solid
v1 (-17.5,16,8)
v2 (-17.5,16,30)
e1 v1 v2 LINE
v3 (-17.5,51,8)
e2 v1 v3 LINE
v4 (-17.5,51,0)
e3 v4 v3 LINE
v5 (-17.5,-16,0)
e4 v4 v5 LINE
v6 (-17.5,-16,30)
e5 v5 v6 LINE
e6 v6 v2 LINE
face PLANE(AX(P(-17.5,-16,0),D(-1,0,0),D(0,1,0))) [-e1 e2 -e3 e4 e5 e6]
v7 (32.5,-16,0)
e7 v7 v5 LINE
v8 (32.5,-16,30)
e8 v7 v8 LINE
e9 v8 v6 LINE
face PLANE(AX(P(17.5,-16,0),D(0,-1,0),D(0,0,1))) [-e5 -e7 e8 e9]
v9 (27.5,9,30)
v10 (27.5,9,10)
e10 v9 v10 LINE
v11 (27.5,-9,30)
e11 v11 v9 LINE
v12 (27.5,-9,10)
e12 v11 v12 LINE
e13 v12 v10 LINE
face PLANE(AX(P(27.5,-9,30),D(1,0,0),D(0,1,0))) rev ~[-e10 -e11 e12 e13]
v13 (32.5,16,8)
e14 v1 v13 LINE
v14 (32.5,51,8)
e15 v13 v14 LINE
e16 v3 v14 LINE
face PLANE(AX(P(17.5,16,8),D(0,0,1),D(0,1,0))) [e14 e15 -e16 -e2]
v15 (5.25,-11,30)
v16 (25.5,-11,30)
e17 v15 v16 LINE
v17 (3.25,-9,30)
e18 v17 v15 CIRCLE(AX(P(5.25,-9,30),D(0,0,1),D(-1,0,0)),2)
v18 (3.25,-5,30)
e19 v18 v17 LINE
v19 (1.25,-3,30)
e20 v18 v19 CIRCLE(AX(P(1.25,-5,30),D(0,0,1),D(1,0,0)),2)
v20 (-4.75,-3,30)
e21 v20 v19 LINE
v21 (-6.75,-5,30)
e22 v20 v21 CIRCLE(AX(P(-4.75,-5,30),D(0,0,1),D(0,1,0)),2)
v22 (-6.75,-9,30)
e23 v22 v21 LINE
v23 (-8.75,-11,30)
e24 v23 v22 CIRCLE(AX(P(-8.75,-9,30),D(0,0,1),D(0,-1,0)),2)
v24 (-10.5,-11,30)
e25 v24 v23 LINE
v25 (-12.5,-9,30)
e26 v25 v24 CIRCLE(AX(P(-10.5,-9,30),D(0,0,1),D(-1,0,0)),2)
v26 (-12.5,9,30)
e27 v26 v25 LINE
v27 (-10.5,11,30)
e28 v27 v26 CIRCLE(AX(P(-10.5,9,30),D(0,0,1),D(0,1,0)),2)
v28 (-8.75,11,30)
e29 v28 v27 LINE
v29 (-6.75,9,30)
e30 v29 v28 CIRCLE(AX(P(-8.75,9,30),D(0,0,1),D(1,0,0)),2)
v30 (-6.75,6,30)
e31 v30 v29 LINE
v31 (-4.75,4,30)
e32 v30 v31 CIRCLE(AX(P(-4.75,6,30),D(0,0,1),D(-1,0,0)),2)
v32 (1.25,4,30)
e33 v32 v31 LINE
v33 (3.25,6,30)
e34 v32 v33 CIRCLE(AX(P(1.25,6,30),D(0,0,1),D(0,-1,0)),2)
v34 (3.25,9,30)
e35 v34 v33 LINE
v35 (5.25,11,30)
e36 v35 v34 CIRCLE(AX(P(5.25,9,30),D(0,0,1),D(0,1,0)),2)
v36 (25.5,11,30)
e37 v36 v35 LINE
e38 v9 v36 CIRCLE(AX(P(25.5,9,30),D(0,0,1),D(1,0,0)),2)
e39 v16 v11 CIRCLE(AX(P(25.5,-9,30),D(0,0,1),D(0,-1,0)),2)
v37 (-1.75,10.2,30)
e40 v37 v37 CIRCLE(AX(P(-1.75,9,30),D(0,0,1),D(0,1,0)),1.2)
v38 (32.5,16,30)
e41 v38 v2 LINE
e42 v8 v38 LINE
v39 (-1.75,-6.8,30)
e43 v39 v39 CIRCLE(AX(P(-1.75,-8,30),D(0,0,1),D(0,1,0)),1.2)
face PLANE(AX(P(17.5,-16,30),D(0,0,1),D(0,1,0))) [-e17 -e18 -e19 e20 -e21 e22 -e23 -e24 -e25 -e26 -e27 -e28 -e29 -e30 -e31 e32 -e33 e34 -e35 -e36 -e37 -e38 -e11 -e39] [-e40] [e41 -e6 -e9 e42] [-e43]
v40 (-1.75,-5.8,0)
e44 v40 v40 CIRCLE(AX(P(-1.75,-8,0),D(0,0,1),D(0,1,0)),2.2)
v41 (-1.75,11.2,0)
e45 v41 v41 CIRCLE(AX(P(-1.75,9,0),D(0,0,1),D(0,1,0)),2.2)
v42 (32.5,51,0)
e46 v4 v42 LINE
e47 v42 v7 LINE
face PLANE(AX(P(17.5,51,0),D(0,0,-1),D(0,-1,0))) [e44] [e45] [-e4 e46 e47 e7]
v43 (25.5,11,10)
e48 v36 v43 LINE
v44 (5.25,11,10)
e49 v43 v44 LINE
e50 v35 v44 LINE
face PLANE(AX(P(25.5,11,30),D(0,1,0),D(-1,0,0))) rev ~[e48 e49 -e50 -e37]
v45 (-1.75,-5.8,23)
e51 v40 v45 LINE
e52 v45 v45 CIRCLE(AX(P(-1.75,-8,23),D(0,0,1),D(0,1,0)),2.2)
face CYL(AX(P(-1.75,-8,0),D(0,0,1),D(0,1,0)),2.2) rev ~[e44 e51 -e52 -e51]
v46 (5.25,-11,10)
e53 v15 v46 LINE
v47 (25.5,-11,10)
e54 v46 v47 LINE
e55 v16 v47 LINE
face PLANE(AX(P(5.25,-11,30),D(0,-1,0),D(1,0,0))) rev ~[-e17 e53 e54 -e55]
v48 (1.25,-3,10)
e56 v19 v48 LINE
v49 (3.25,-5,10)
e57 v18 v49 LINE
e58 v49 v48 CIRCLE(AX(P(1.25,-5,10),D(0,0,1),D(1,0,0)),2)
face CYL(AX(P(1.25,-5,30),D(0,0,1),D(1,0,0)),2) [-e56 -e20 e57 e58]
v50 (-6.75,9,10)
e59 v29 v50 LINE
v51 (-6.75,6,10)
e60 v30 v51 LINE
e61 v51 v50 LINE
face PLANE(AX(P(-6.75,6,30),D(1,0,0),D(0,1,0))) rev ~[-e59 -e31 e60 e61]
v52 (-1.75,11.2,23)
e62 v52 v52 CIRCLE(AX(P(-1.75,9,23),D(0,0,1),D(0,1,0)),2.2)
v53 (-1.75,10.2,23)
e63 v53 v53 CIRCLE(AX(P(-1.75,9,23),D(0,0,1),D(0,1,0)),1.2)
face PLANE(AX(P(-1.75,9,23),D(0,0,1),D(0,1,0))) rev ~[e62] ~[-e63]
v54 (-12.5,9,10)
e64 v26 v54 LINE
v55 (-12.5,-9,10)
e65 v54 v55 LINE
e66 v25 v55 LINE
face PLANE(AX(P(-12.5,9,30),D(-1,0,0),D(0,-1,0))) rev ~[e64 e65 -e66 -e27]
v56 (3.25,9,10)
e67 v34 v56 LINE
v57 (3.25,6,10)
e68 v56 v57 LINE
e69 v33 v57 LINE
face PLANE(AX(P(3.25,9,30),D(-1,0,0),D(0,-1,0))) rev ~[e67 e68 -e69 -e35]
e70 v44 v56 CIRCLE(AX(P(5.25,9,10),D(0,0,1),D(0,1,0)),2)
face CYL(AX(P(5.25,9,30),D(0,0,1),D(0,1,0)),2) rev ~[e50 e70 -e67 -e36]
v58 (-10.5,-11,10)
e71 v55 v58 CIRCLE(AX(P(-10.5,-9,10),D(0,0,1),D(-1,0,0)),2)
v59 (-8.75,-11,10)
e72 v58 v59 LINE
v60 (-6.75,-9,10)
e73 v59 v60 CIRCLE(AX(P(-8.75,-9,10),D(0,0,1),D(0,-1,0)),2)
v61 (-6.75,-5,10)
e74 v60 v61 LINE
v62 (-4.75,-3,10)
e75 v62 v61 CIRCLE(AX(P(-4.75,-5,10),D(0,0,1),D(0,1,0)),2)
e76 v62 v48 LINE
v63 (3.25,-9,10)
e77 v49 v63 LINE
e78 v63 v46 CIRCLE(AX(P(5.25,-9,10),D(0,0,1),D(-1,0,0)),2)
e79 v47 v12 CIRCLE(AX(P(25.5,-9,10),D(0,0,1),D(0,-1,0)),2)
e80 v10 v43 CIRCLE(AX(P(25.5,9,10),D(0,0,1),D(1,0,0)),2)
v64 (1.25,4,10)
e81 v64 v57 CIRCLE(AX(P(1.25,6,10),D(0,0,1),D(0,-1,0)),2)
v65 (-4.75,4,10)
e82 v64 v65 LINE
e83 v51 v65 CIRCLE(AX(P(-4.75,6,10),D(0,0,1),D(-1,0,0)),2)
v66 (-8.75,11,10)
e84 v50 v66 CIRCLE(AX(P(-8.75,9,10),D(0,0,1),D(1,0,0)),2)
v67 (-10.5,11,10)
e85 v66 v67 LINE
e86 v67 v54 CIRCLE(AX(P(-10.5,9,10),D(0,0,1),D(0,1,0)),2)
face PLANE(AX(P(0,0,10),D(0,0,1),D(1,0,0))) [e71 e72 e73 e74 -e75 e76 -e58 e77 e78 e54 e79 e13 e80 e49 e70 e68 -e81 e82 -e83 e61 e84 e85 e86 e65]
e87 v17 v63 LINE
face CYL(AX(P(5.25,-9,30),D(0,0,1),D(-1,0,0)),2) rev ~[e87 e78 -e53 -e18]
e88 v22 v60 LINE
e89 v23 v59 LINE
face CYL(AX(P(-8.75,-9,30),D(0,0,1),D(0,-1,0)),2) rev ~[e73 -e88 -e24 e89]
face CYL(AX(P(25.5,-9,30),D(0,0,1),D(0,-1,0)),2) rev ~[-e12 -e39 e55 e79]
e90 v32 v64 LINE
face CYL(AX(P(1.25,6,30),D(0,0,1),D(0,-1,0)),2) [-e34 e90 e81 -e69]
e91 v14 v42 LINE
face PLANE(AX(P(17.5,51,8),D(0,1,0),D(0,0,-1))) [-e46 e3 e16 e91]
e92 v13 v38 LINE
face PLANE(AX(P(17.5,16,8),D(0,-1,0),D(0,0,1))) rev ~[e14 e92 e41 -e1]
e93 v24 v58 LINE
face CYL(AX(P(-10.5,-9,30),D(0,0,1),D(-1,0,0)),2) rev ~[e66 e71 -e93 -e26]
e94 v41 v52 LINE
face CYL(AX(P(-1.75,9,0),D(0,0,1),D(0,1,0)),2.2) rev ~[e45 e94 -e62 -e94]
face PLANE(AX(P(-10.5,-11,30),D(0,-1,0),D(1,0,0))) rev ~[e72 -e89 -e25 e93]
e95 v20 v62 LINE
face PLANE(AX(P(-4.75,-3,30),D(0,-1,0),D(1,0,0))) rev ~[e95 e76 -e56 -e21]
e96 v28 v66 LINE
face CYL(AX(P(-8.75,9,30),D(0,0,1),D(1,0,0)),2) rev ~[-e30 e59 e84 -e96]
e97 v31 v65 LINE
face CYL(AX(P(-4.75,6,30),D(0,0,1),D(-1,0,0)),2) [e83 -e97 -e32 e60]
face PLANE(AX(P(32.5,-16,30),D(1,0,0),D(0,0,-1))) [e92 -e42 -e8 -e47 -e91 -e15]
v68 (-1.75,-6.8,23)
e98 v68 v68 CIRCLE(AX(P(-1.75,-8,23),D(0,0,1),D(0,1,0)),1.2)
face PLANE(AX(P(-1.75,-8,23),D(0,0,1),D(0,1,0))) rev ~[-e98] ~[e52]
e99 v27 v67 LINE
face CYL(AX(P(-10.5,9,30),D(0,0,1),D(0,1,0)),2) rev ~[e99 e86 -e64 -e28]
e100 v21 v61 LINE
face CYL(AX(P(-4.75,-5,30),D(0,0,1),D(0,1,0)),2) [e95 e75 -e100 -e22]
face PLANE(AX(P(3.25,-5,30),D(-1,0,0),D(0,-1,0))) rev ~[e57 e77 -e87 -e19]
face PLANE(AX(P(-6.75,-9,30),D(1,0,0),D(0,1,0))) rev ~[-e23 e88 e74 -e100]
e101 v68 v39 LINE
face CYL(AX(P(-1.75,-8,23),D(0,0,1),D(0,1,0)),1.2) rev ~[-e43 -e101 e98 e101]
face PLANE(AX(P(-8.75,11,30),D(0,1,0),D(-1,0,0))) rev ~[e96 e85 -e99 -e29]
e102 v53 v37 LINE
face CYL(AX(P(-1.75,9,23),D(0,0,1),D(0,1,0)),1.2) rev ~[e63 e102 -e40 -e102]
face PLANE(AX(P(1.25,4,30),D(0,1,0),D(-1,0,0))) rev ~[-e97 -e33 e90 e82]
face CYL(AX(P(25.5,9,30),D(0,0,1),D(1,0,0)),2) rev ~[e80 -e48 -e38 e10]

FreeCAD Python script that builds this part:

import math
import FreeCAD as App
import Part
import Sketcher

V = App.Vector

doc = App.newDocument("Part")
body = doc.addObject("PartDesign::Body", "Body")

sketch1 = body.newObject("Sketcher::SketchObject", "Sketch")
sketch1.AttachmentSupport = (doc.getObject("XY_Plane"), [""])
sketch1.MapMode = "FlatFace"
sketch1.addGeometry([
    Part.LineSegment(V(18, 16, 0), V(-18, 16, 0)),
    Part.LineSegment(V(-18, 16, 0), V(-18, -16, 0)),
    Part.LineSegment(V(-18, -16, 0), V(18, -16, 0)),
    Part.LineSegment(V(18, -16, 0), V(18, 16, 0)),
], False)
sketch1.addConstraint([
    Sketcher.Constraint("Coincident", 0, 2, 1, 1),
    Sketcher.Constraint("Coincident", 1, 2, 2, 1),
    Sketcher.Constraint("Coincident", 2, 2, 3, 1),
    Sketcher.Constraint("Coincident", 3, 2, 0, 1),
    Sketcher.Constraint("Horizontal", 0),
    Sketcher.Constraint("Vertical", 1),
    Sketcher.Constraint("Horizontal", 2),
    Sketcher.Constraint("Vertical", 3),
    Sketcher.Constraint("Symmetric", 0, 2, 2, 2, -1, 1),
    Sketcher.Constraint("DistanceX", 0, 2, 0, 1, 35.0),
    Sketcher.Constraint("DistanceY", 1, 2, 1, 1, 32.0),
])
pad1 = body.newObject("PartDesign::Pad", "Pad")
pad1.Profile = sketch1
pad1.Length = 30

sketch2 = body.newObject("Sketcher::SketchObject", "Sketch001")
sketch2.AttachmentSupport = (doc.getObject("XZ_Plane"), [""])
sketch2.MapMode = "FlatFace"
sketch2.AttachmentOffset = App.Placement(V(0, 0, -16), App.Rotation())
sketch2.addGeometry([
    Part.LineSegment(V(18, 0, 0), V(-18, 0, 0)),
    Part.LineSegment(V(-18, 0, 0), V(-18, 8, 0)),
    Part.LineSegment(V(-18, 8, 0), V(18, 8, 0)),
    Part.LineSegment(V(18, 8, 0), V(18, 0, 0)),
], False)
sketch2.addConstraint([
    Sketcher.Constraint("Coincident", 0, 2, 1, 1),
    Sketcher.Constraint("Coincident", 1, 2, 2, 1),
    Sketcher.Constraint("Coincident", 2, 2, 3, 1),
    Sketcher.Constraint("Coincident", 3, 2, 0, 1),
    Sketcher.Constraint("Horizontal", 0),
    Sketcher.Constraint("Vertical", 1),
    Sketcher.Constraint("Horizontal", 2),
    Sketcher.Constraint("Vertical", 3),
    Sketcher.Constraint("Symmetric", 0, 2, 3, 2, -1, 1),
    Sketcher.Constraint("DistanceY", 1, 1, 1, 2, 8.0),
    Sketcher.Constraint("DistanceX", 0, 2, 0, 1, 35.0),
])
pad2 = body.newObject("PartDesign::Pad", "Pad001")
pad2.Profile = sketch2
pad2.Length = 35
pad2.Reversed = True

sketch3 = body.newObject("Sketcher::SketchObject", "Sketch002")
sketch3.AttachmentSupport = (doc.getObject("XY_Plane"), [""])
sketch3.MapMode = "FlatFace"
sketch3.addGeometry([
    Part.Circle(V(-1.8, 9, 0), V(0, 0, 1), 1.2),
    Part.Circle(V(-1.8, -8, 0), V(0, 0, 1), 1.2),
], False)
sketch3.addConstraint([
    Sketcher.Constraint("Equal", 0, 1),
    Sketcher.Constraint("Vertical", 0, 3, 1, 3),
    Sketcher.Constraint("Diameter", 0, 2.4),
    Sketcher.Constraint("DistanceY", -1, 1, 0, 3, 9.0),
    Sketcher.Constraint("DistanceY", 1, 3, -1, 1, 8.0),
    Sketcher.Constraint("DistanceX", 0, 3, -1, 1, 1.75),
])
doc.recompute()
hole = body.newObject("PartDesign::Hole", "Hole")
hole.Profile = sketch3
hole.ThreadType = "None"
hole.Diameter = 2.4
hole.DepthType = "ThroughAll"
hole.HoleCutType = "Counterbore"
hole.HoleCutDiameter = 4.4
hole.HoleCutDepth = 23
hole.Reversed = True

sketch4 = body.newObject("Sketcher::SketchObject", "Sketch003")
sketch4.AttachmentSupport = (doc.getObject("YZ_Plane"), [""])
sketch4.MapMode = "FlatFace"
sketch4.AttachmentOffset = App.Placement(V(0, 0, 17.5), App.Rotation())
sketch4.addGeometry([
    Part.LineSegment(V(-16, 0, 0), V(51, 0, 0)),
    Part.LineSegment(V(51, 0, 0), V(51, 8, 0)),
    Part.LineSegment(V(51, 8, 0), V(16, 8, 0)),
    Part.LineSegment(V(16, 8, 0), V(16, 30, 0)),
    Part.LineSegment(V(16, 30, 0), V(-16, 30, 0)),
    Part.LineSegment(V(-16, 30, 0), V(-16, 0, 0)),
], False)
sketch4.addConstraint([
    Sketcher.Constraint("Coincident", 0, 2, 1, 1),
    Sketcher.Constraint("Coincident", 1, 2, 2, 1),
    Sketcher.Constraint("Coincident", 2, 2, 3, 1),
    Sketcher.Constraint("Coincident", 3, 2, 4, 1),
    Sketcher.Constraint("Coincident", 4, 2, 5, 1),
    Sketcher.Constraint("Coincident", 5, 2, 0, 1),
    Sketcher.Constraint("Horizontal", 0),
    Sketcher.Constraint("Vertical", 1),
    Sketcher.Constraint("Horizontal", 2),
    Sketcher.Constraint("Vertical", 3),
    Sketcher.Constraint("Horizontal", 4),
    Sketcher.Constraint("Vertical", 5),
    Sketcher.Constraint("PointOnObject", 0, 2, -1),
    Sketcher.Constraint("DistanceX", 0, 1, 0, 2, 67.0),
    Sketcher.Constraint("DistanceX", 2, 2, 2, 1, 35.0),
    Sketcher.Constraint("DistanceY", 1, 1, 1, 2, 8.0),
    Sketcher.Constraint("DistanceY", 3, 1, 3, 2, 22.0),
    Sketcher.Constraint("DistanceX", -1, 1, 0, 2, 51.0),
])
pad3 = body.newObject("PartDesign::Pad", "Pad002")
pad3.Profile = sketch4
pad3.Length = 15

sketch5 = body.newObject("Sketcher::SketchObject", "Sketch004")
sketch5.AttachmentSupport = (doc.getObject("XY_Plane"), [""])
sketch5.MapMode = "FlatFace"
sketch5.AttachmentOffset = App.Placement(V(0, 0, 30), App.Rotation())
sketch5.addGeometry([
    Part.ArcOfCircle(Part.Circle(V(-8.8, -9, 0), V(0, 0, 1), 2), math.radians(-90), math.radians(0)),
    Part.LineSegment(V(-6.8, -9, 0), V(-6.8, -5, 0)),
    Part.ArcOfCircle(Part.Circle(V(-4.8, -5, 0), V(0, 0, 1), 2), math.radians(90), math.radians(180)),
    Part.LineSegment(V(-4.8, -3, 0), V(1.2, -3, 0)),
    Part.ArcOfCircle(Part.Circle(V(1.2, -5, 0), V(0, 0, 1), 2), math.radians(0), math.radians(90)),
    Part.LineSegment(V(3.2, -5, 0), V(3.2, -9, 0)),
    Part.ArcOfCircle(Part.Circle(V(5.2, -9, 0), V(0, 0, 1), 2), math.radians(180), math.radians(270)),
    Part.LineSegment(V(5.2, -11, 0), V(25.5, -11, 0)),
    Part.ArcOfCircle(Part.Circle(V(25.5, -9, 0), V(0, 0, 1), 2), math.radians(-90), math.radians(0)),
    Part.LineSegment(V(27.5, -9, 0), V(27.5, 9, 0)),
    Part.ArcOfCircle(Part.Circle(V(25.5, 9, 0), V(0, 0, 1), 2), math.radians(0), math.radians(90)),
    Part.LineSegment(V(25.5, 11, 0), V(5.2, 11, 0)),
    Part.ArcOfCircle(Part.Circle(V(5.2, 9, 0), V(0, 0, 1), 2), math.radians(90), math.radians(180)),
    Part.LineSegment(V(3.2, 9, 0), V(3.2, 6, 0)),
    Part.ArcOfCircle(Part.Circle(V(1.2, 6, 0), V(0, 0, 1), 2), math.radians(-90), math.radians(0)),
    Part.LineSegment(V(1.2, 4, 0), V(-4.8, 4, 0)),
    Part.ArcOfCircle(Part.Circle(V(-4.8, 6, 0), V(0, 0, 1), 2), math.radians(180), math.radians(270)),
    Part.LineSegment(V(-6.8, 6, 0), V(-6.8, 9, 0)),
    Part.ArcOfCircle(Part.Circle(V(-8.8, 9, 0), V(0, 0, 1), 2), math.radians(0), math.radians(90)),
    Part.LineSegment(V(-8.8, 11, 0), V(-10.5, 11, 0)),
    Part.ArcOfCircle(Part.Circle(V(-10.5, 9, 0), V(0, 0, 1), 2), math.radians(90), math.radians(180)),
    Part.LineSegment(V(-12.5, 9, 0), V(-12.5, -9, 0)),
    Part.ArcOfCircle(Part.Circle(V(-10.5, -9, 0), V(0, 0, 1), 2), math.radians(180), math.radians(270)),
    Part.LineSegment(V(-10.5, -11, 0), V(-8.8, -11, 0)),
], False)
sketch5.addConstraint([
    Sketcher.Constraint("Tangent", 0, 2, 1, 1),
    Sketcher.Constraint("Tangent", 1, 2, 2, 2),
    Sketcher.Constraint("Tangent", 2, 1, 3, 1),
    Sketcher.Constraint("Tangent", 3, 2, 4, 2),
    Sketcher.Constraint("Tangent", 4, 1, 5, 1),
    Sketcher.Constraint("Tangent", 5, 2, 6, 1),
    Sketcher.Constraint("Tangent", 6, 2, 7, 1),
    Sketcher.Constraint("Tangent", 7, 2, 8, 1),
    Sketcher.Constraint("Tangent", 8, 2, 9, 1),
    Sketcher.Constraint("Tangent", 9, 2, 10, 1),
    Sketcher.Constraint("Tangent", 10, 2, 11, 1),
    Sketcher.Constraint("Tangent", 11, 2, 12, 1),
    Sketcher.Constraint("Tangent", 12, 2, 13, 1),
    Sketcher.Constraint("Tangent", 13, 2, 14, 2),
    Sketcher.Constraint("Tangent", 14, 1, 15, 1),
    Sketcher.Constraint("Tangent", 15, 2, 16, 2),
    Sketcher.Constraint("Tangent", 16, 1, 17, 1),
    Sketcher.Constraint("Tangent", 17, 2, 18, 1),
    Sketcher.Constraint("Tangent", 18, 2, 19, 1),
    Sketcher.Constraint("Tangent", 19, 2, 20, 1),
    Sketcher.Constraint("Tangent", 20, 2, 21, 1),
    Sketcher.Constraint("Tangent", 21, 2, 22, 1),
    Sketcher.Constraint("Tangent", 22, 2, 23, 1),
    Sketcher.Constraint("Tangent", 23, 2, 0, 1),
    Sketcher.Constraint("Vertical", 1),
    Sketcher.Constraint("Horizontal", 3),
    Sketcher.Constraint("Vertical", 5),
    Sketcher.Constraint("Horizontal", 7),
    Sketcher.Constraint("Vertical", 9),
    Sketcher.Constraint("Horizontal", 11),
    Sketcher.Constraint("Vertical", 13),
    Sketcher.Constraint("Horizontal", 15),
    Sketcher.Constraint("Vertical", 17),
    Sketcher.Constraint("Horizontal", 19),
    Sketcher.Constraint("Vertical", 21),
    Sketcher.Constraint("Horizontal", 23),
    Sketcher.Constraint("Equal", 0, 2),
    Sketcher.Constraint("Equal", 2, 4),
    Sketcher.Constraint("Equal", 4, 6),
    Sketcher.Constraint("Equal", 6, 8),
    Sketcher.Constraint("Equal", 8, 10),
    Sketcher.Constraint("Equal", 10, 12),
    Sketcher.Constraint("Equal", 12, 14),
    Sketcher.Constraint("Equal", 14, 16),
    Sketcher.Constraint("Equal", 16, 18),
    Sketcher.Constraint("Equal", 18, 20),
    Sketcher.Constraint("Equal", 20, 22),
    Sketcher.Constraint("Symmetric", 6, 3, 12, 3, -1),
    Sketcher.Constraint("Symmetric", 0, 3, 18, 3, -1),
    Sketcher.Constraint("Horizontal", 0, 3, 6, 3),
    Sketcher.Constraint("Radius", 0, 2.0),
    Sketcher.Constraint("DistanceY", 2, 3, -1, 1, 5.0),
    Sketcher.Constraint("DistanceY", 14, 3, 11, 2, 5.0),
    Sketcher.Constraint("DistanceX", 3, 1, 3, 2, 6.0),
    Sketcher.Constraint("DistanceY", 1, 1, 1, 2, 4.0),
    Sketcher.Constraint("DistanceX", 7, 1, 7, 2, 20.25),
    Sketcher.Constraint("DistanceX", 19, 2, 19, 1, 1.75),
    Sketcher.Constraint("DistanceX", -1, 1, 8, 3, 25.5),
])
pocket1 = body.newObject("PartDesign::Pocket", "Pocket")
pocket1.Profile = sketch5
pocket1.Length = 20

doc.recompute()
